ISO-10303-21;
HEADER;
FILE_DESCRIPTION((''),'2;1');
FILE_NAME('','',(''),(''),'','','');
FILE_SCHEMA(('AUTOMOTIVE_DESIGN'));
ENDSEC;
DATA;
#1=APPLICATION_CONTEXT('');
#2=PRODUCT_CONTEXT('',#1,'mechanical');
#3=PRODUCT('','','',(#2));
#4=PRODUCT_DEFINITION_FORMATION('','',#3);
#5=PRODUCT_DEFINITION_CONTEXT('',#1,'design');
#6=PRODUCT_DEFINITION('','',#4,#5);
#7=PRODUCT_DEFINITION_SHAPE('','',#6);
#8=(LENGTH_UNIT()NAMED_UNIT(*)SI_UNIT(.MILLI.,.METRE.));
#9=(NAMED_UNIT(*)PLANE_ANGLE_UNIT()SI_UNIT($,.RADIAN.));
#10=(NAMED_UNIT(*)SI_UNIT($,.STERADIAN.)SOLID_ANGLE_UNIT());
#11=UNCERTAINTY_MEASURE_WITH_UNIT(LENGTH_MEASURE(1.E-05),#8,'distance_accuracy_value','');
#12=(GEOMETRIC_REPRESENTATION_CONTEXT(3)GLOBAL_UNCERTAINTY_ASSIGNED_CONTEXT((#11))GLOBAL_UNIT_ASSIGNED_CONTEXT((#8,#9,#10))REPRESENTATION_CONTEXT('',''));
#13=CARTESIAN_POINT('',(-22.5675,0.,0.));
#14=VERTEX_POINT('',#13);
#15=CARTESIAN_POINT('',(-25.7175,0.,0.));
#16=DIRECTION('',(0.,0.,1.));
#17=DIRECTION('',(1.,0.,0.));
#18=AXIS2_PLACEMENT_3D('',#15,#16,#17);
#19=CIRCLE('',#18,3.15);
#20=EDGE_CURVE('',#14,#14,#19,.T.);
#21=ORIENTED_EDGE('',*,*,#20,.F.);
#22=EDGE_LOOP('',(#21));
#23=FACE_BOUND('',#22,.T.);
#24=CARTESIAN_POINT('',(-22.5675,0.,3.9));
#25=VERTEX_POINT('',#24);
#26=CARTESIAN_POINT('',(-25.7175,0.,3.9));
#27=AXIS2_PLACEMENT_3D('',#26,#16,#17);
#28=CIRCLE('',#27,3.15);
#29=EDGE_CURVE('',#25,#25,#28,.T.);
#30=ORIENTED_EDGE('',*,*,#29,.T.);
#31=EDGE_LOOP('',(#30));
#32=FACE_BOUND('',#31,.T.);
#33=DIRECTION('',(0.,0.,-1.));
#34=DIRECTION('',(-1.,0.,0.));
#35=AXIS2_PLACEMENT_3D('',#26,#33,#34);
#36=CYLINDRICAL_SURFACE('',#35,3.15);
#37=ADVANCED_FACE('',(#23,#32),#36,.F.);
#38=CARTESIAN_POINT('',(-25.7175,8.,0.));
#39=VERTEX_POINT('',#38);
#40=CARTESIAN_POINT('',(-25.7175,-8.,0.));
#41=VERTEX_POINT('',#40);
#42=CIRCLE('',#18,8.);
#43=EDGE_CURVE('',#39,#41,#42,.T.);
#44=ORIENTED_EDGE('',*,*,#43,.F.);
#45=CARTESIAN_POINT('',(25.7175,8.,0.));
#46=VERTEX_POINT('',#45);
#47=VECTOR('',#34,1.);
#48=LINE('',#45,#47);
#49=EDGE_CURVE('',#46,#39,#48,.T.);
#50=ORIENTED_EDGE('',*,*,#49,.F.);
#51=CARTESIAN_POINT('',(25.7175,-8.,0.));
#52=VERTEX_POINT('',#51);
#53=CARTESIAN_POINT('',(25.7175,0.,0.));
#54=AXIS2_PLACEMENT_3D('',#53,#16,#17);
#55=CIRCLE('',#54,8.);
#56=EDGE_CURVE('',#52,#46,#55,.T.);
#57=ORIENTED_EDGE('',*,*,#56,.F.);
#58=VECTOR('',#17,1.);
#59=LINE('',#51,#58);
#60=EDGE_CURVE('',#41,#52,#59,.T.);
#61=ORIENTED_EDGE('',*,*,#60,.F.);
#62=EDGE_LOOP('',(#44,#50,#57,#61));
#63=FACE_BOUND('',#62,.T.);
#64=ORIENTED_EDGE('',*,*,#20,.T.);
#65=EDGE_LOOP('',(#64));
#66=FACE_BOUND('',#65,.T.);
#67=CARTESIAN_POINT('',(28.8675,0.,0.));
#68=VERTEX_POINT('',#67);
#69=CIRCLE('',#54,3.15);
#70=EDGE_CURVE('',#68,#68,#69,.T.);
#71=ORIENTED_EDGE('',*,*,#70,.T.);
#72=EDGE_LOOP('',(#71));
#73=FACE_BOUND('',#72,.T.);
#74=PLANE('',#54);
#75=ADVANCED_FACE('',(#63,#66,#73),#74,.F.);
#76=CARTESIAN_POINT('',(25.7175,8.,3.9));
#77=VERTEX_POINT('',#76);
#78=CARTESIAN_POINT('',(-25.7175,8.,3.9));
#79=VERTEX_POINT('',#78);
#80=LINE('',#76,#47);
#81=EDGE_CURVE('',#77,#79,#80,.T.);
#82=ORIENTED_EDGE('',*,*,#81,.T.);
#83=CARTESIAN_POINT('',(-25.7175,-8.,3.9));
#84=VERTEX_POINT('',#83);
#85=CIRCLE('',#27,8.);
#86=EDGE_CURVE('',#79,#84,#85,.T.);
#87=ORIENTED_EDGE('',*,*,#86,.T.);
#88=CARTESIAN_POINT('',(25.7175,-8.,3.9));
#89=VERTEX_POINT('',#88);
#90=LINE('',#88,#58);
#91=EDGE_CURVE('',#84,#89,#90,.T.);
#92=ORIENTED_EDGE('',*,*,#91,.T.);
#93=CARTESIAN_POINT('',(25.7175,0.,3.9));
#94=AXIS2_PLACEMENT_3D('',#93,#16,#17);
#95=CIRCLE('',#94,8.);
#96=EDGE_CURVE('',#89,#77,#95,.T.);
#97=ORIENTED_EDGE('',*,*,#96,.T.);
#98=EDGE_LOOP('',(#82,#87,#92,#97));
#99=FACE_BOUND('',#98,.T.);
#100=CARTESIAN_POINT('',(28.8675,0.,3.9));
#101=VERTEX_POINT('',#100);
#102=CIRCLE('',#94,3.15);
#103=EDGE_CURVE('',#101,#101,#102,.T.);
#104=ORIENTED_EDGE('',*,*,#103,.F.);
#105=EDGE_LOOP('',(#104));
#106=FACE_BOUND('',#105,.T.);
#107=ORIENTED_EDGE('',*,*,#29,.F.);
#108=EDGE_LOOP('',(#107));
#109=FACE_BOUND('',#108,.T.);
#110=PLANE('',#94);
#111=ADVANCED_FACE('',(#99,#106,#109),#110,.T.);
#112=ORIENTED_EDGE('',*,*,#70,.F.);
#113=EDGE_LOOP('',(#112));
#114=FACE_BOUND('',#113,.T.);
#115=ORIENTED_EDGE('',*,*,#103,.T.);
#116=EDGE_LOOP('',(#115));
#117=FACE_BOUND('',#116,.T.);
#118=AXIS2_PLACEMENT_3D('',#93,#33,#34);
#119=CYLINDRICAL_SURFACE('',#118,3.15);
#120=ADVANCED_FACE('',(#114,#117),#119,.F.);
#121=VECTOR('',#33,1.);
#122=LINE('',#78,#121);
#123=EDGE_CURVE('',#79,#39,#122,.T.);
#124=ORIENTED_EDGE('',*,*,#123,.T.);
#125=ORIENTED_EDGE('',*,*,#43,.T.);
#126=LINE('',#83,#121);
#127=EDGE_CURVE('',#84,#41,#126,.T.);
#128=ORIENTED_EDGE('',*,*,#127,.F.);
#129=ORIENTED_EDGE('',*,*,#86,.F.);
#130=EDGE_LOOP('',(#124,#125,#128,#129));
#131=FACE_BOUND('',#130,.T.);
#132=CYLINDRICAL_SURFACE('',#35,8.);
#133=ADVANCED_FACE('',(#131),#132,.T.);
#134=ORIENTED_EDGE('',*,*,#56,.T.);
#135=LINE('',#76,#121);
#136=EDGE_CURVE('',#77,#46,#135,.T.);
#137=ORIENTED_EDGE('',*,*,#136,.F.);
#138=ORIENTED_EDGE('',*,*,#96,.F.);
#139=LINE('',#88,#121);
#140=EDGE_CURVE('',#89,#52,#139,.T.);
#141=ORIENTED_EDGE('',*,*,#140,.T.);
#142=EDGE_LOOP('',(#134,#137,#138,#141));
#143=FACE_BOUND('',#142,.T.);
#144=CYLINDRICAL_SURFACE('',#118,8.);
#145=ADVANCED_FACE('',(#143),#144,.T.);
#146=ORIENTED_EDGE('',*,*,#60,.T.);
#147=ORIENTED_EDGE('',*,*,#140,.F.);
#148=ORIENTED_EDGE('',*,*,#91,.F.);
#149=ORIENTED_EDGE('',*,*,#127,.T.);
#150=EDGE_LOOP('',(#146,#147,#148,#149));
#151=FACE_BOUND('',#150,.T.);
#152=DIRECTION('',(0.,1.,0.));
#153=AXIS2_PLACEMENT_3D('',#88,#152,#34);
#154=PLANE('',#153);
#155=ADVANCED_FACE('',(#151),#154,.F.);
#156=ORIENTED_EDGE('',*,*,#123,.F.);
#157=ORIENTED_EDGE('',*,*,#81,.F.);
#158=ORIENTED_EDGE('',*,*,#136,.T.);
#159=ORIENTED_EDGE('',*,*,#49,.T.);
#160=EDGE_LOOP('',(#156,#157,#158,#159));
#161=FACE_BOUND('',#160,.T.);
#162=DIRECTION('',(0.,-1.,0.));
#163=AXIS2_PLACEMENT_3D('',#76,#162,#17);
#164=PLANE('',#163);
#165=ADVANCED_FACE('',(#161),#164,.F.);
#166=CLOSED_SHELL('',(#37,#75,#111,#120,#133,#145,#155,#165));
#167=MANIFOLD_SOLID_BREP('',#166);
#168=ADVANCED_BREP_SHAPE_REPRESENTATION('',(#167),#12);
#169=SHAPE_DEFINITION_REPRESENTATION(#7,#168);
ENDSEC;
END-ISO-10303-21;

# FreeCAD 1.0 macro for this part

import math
import FreeCAD as App
import Part
import Sketcher

V = App.Vector

doc = App.newDocument("Part")
params = doc.addObject("Spreadsheet::Sheet", "Params")
for row, (alias, value) in enumerate([
    ("sketch1_radius", "8 mm"),
    ("sketch1_diameter", "6.3 mm"),
    ("pad1_length", "3.9 mm"),
], start=1):
    params.set(f"A{row}", alias)
    params.set(f"B{row}", "=" + value)
    params.setAlias(f"B{row}", alias)

body = doc.addObject("PartDesign::Body", "Body")

sketch1 = body.newObject("Sketcher::SketchObject", "Sketch")
sketch1.AttachmentSupport = (doc.getObject("XY_Plane"), [""])
sketch1.MapMode = "FlatFace"
sketch1.addGeometry(Part.LineSegment(V(-25.7175, -8, 0), V(25.7175, -8, 0)), False)
sketch1.addGeometry(Part.ArcOfCircle(Part.Circle(V(25.7175, 0, 0), V(0, 0, 1), 8), math.radians(-90), math.radians(90)), False)
sketch1.addGeometry(Part.LineSegment(V(25.7175, 8, 0), V(-25.7175, 8, 0)), False)
sketch1.addGeometry(Part.ArcOfCircle(Part.Circle(V(-25.7175, 0, 0), V(0, 0, 1), 8), math.radians(90), math.radians(270)), False)
sketch1.addGeometry(Part.Circle(V(25.7175, 0, 0), V(0, 0, 1), 3.15), False)
sketch1.addGeometry(Part.Circle(V(-25.7175, 0, 0), V(0, 0, 1), 3.15), False)
sketch1.addConstraint(Sketcher.Constraint("Tangent", 0, 2, 1, 1))
sketch1.addConstraint(Sketcher.Constraint("Tangent", 1, 2, 2, 1))
sketch1.addConstraint(Sketcher.Constraint("Tangent", 2, 2, 3, 1))
sketch1.addConstraint(Sketcher.Constraint("Tangent", 3, 2, 0, 1))
sketch1.addConstraint(Sketcher.Constraint("Horizontal", 0))
sketch1.addConstraint(Sketcher.Constraint("Horizontal", 2))
sketch1.addConstraint(Sketcher.Constraint("Coincident", 4, 3, 1, 3))
sketch1.addConstraint(Sketcher.Constraint("Coincident", 5, 3, 3, 3))
sketch1.addConstraint(Sketcher.Constraint("Equal", 4, 5))
sketch1.addConstraint(Sketcher.Constraint("Symmetric", 1, 3, 3, 3, -1, 1))
sketch1.addConstraint(Sketcher.Constraint("Radius", 1, 8.0))
sketch1.addConstraint(Sketcher.Constraint("Diameter", 4, 6.3))
sketch1.addConstraint(Sketcher.Constraint("DistanceX", 0, 1, 0, 2, 51.435))
sketch1.setExpression("Constraints[10]", "Params.sketch1_radius")
sketch1.setExpression("Constraints[11]", "Params.sketch1_diameter")
pad1 = body.newObject("PartDesign::Pad", "Pad")
pad1.Profile = sketch1
pad1.setExpression("Length", "Params.pad1_length")

doc.recompute()
